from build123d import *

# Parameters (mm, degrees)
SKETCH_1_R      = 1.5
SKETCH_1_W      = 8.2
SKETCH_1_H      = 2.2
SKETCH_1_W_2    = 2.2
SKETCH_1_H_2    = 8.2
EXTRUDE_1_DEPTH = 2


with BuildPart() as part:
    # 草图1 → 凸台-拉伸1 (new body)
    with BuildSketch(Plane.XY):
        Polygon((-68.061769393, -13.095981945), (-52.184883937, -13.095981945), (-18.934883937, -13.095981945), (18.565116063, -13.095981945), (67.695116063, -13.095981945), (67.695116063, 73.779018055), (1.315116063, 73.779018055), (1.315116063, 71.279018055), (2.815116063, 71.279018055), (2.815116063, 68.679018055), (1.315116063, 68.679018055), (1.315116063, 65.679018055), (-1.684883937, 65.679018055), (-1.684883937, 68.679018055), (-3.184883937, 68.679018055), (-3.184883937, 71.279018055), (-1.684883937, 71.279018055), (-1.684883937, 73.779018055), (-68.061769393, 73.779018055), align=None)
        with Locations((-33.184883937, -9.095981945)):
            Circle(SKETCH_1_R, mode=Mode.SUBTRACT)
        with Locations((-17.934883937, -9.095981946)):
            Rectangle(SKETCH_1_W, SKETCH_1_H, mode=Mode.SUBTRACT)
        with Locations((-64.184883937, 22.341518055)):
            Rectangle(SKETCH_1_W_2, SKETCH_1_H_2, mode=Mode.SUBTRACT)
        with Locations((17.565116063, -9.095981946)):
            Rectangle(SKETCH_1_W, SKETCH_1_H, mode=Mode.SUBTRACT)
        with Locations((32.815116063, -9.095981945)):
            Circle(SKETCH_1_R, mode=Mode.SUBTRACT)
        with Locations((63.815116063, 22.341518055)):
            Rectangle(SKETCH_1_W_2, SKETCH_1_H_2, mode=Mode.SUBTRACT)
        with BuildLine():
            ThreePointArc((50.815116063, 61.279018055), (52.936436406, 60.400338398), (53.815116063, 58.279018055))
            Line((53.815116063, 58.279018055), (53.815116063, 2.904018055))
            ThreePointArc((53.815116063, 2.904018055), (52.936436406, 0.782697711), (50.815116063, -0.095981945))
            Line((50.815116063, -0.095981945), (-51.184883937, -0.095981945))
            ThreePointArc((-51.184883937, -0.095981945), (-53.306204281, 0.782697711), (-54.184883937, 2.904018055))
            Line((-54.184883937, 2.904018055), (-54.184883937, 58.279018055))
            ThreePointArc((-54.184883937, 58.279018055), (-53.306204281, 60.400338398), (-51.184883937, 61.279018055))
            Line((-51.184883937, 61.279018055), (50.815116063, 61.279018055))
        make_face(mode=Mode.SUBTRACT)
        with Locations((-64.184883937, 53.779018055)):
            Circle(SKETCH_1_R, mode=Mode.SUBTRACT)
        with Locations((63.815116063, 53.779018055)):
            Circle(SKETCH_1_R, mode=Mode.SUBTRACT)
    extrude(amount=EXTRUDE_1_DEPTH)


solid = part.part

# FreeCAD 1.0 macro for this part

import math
import FreeCAD as App
import Part
import Sketcher
from FreeCAD import Vector
Q = App.Units.Quantity

doc = App.newDocument("Part")
params = doc.addObject("Spreadsheet::Sheet", "Params")
for row, (alias, value) in enumerate([
    ("sketch1_diameter", "3 mm"),
    ("sketch1_radius", "3 mm"),
    ("sketch1_width", "3 mm"),
    ("sketch1_width2", "102 mm"),
    ("sketch1_width3", "1.5 mm"),
    ("pad1_length", "2 mm"),
], start=1):
    params.set(f"A{row}", alias)
    params.set(f"B{row}", "=" + value)
    params.setAlias(f"B{row}", alias)

body = doc.addObject("PartDesign::Body", "Body")

sketch1 = body.newObject("Sketcher::SketchObject", "Sketch")
sketch1.AttachmentSupport = (doc.getObject("XY_Plane"), [""])
sketch1.MapMode = "FlatFace"
sketch1.addGeometry(Part.LineSegment(Vector(-68.061769, -13.095982, 0), Vector(67.695116, -13.095982, 0)), False)
sketch1.addGeometry(Part.LineSegment(Vector(67.695116, -13.095982, 0), Vector(67.695116, 73.779018, 0)), False)
sketch1.addGeometry(Part.LineSegment(Vector(67.695116, 73.779018, 0), Vector(1.315116, 73.779018, 0)), False)
sketch1.addGeometry(Part.LineSegment(Vector(1.315116, 73.779018, 0), Vector(1.315116, 71.279018, 0)), False)
sketch1.addGeometry(Part.LineSegment(Vector(1.315116, 71.279018, 0), Vector(2.815116, 71.279018, 0)), False)
sketch1.addGeometry(Part.LineSegment(Vector(2.815116, 71.279018, 0), Vector(2.815116, 68.679018, 0)), False)
sketch1.addGeometry(Part.LineSegment(Vector(2.815116, 68.679018, 0), Vector(1.315116, 68.679018, 0)), False)
sketch1.addGeometry(Part.LineSegment(Vector(1.315116, 68.679018, 0), Vector(1.315116, 65.679018, 0)), False)
sketch1.addGeometry(Part.LineSegment(Vector(1.315116, 65.679018, 0), Vector(-1.684884, 65.679018, 0)), False)
sketch1.addGeometry(Part.LineSegment(Vector(-1.684884, 65.679018, 0), Vector(-1.684884, 68.679018, 0)), False)
sketch1.addGeometry(Part.LineSegment(Vector(-1.684884, 68.679018, 0), Vector(-3.184884, 68.679018, 0)), False)
sketch1.addGeometry(Part.LineSegment(Vector(-3.184884, 68.679018, 0), Vector(-3.184884, 71.279018, 0)), False)
sketch1.addGeometry(Part.LineSegment(Vector(-3.184884, 71.279018, 0), Vector(-1.684884, 71.279018, 0)), False)
sketch1.addGeometry(Part.LineSegment(Vector(-1.684884, 71.279018, 0), Vector(-1.684884, 73.779018, 0)), False)
sketch1.addGeometry(Part.LineSegment(Vector(-1.684884, 73.779018, 0), Vector(-68.061769, 73.779018, 0)), False)
sketch1.addGeometry(Part.LineSegment(Vector(-68.061769, 73.779018, 0), Vector(-68.061769, -13.095982, 0)), False)
sketch1.addGeometry(Part.Circle(Vector(-33.184884, -9.095982, 0), Vector(0, 0, 1), 1.5), False)
sketch1.addGeometry(Part.LineSegment(Vector(-13.834884, -10.195982, 0), Vector(-22.034884, -10.195982, 0)), False)
sketch1.addGeometry(Part.LineSegment(Vector(-22.034884, -10.195982, 0), Vector(-22.034884, -7.995982, 0)), False)
sketch1.addGeometry(Part.LineSegment(Vector(-22.034884, -7.995982, 0), Vector(-13.834884, -7.995982, 0)), False)
sketch1.addGeometry(Part.LineSegment(Vector(-13.834884, -7.995982, 0), Vector(-13.834884, -10.195982, 0)), False)
sketch1.addGeometry(Part.LineSegment(Vector(-63.084884, 18.241518, 0), Vector(-65.284884, 18.241518, 0)), False)
sketch1.addGeometry(Part.LineSegment(Vector(-65.284884, 18.241518, 0), Vector(-65.284884, 26.441518, 0)), False)
sketch1.addGeometry(Part.LineSegment(Vector(-65.284884, 26.441518, 0), Vector(-63.084884, 26.441518, 0)), False)
sketch1.addGeometry(Part.LineSegment(Vector(-63.084884, 26.441518, 0), Vector(-63.084884, 18.241518, 0)), False)
sketch1.addGeometry(Part.LineSegment(Vector(21.665116, -10.195982, 0), Vector(13.465116, -10.195982, 0)), False)
sketch1.addGeometry(Part.LineSegment(Vector(13.465116, -10.195982, 0), Vector(13.465116, -7.995982, 0)), False)
sketch1.addGeometry(Part.LineSegment(Vector(13.465116, -7.995982, 0), Vector(21.665116, -7.995982, 0)), False)
sketch1.addGeometry(Part.LineSegment(Vector(21.665116, -7.995982, 0), Vector(21.665116, -10.195982, 0)), False)
sketch1.addGeometry(Part.Circle(Vector(32.815116, -9.095982, 0), Vector(0, 0, 1), 1.5), False)
sketch1.addGeometry(Part.LineSegment(Vector(64.915116, 18.241518, 0), Vector(62.715116, 18.241518, 0)), False)
sketch1.addGeometry(Part.LineSegment(Vector(62.715116, 18.241518, 0), Vector(62.715116, 26.441518, 0)), False)
sketch1.addGeometry(Part.LineSegment(Vector(62.715116, 26.441518, 0), Vector(64.915116, 26.441518, 0)), False)
sketch1.addGeometry(Part.LineSegment(Vector(64.915116, 26.441518, 0), Vector(64.915116, 18.241518, 0)), False)
sketch1.addGeometry(Part.LineSegment(Vector(-51.184884, 61.279018, 0), Vector(50.815116, 61.279018, 0)), False)
sketch1.addGeometry(Part.ArcOfCircle(Part.Circle(Vector(50.815116, 58.279018, 0), Vector(0, 0, 1), 3), math.radians(0), math.radians(90)), False)
sketch1.addGeometry(Part.LineSegment(Vector(53.815116, 58.279018, 0), Vector(53.815116, 2.904018, 0)), False)
sketch1.addGeometry(Part.ArcOfCircle(Part.Circle(Vector(50.815116, 2.904018, 0), Vector(0, 0, 1), 3), math.radians(-90), math.radians(0)), False)
sketch1.addGeometry(Part.LineSegment(Vector(50.815116, -0.095982, 0), Vector(-51.184884, -0.095982, 0)), False)
sketch1.addGeometry(Part.ArcOfCircle(Part.Circle(Vector(-51.184884, 2.904018, 0), Vector(0, 0, 1), 3), math.radians(180), math.radians(270)), False)
sketch1.addGeometry(Part.LineSegment(Vector(-54.184884, 2.904018, 0), Vector(-54.184884, 58.279018, 0)), False)
sketch1.addGeometry(Part.ArcOfCircle(Part.Circle(Vector(-51.184884, 58.279018, 0), Vector(0, 0, 1), 3), math.radians(90), math.radians(180)), False)
sketch1.addGeometry(Part.Circle(Vector(-64.184884, 53.779018, 0), Vector(0, 0, 1), 1.5), False)
sketch1.addGeometry(Part.Circle(Vector(63.815116, 53.779018, 0), Vector(0, 0, 1), 1.5), False)
sketch1.addConstraint(Sketcher.Constraint("Coincident", 0, 2, 1, 1))
sketch1.addConstraint(Sketcher.Constraint("Coincident", 1, 2, 2, 1))
sketch1.addConstraint(Sketcher.Constraint("Coincident", 2, 2, 3, 1))
sketch1.addConstraint(Sketcher.Constraint("Coincident", 3, 2, 4, 1))
sketch1.addConstraint(Sketcher.Constraint("Coincident", 4, 2, 5, 1))
sketch1.addConstraint(Sketcher.Constraint("Coincident", 5, 2, 6, 1))
sketch1.addConstraint(Sketcher.Constraint("Coincident", 6, 2, 7, 1))
sketch1.addConstraint(Sketcher.Constraint("Coincident", 7, 2, 8, 1))
sketch1.addConstraint(Sketcher.Constraint("Coincident", 8, 2, 9, 1))
sketch1.addConstraint(Sketcher.Constraint("Coincident", 9, 2, 10, 1))
sketch1.addConstraint(Sketcher.Constraint("Coincident", 10, 2, 11, 1))
sketch1.addConstraint(Sketcher.Constraint("Coincident", 11, 2, 12, 1))
sketch1.addConstraint(Sketcher.Constraint("Coincident", 12, 2, 13, 1))
sketch1.addConstraint(Sketcher.Constraint("Coincident", 13, 2, 14, 1))
sketch1.addConstraint(Sketcher.Constraint("Coincident", 14, 2, 15, 1))
sketch1.addConstraint(Sketcher.Constraint("Coincident", 15, 2, 0, 1))
sketch1.addConstraint(Sketcher.Constraint("Coincident", 17, 2, 18, 1))
sketch1.addConstraint(Sketcher.Constraint("Coincident", 18, 2, 19, 1))
sketch1.addConstraint(Sketcher.Constraint("Coincident", 19, 2, 20, 1))
sketch1.addConstraint(Sketcher.Constraint("Coincident", 20, 2, 17, 1))
sketch1.addConstraint(Sketcher.Constraint("Coincident", 21, 2, 22, 1))
sketch1.addConstraint(Sketcher.Constraint("Coincident", 22, 2, 23, 1))
sketch1.addConstraint(Sketcher.Constraint("Coincident", 23, 2, 24, 1))
sketch1.addConstraint(Sketcher.Constraint("Coincident", 24, 2, 21, 1))
sketch1.addConstraint(Sketcher.Constraint("Coincident", 25, 2, 26, 1))
sketch1.addConstraint(Sketcher.Constraint("Coincident", 26, 2, 27, 1))
sketch1.addConstraint(Sketcher.Constraint("Coincident", 27, 2, 28, 1))
sketch1.addConstraint(Sketcher.Constraint("Coincident", 28, 2, 25, 1))
sketch1.addConstraint(Sketcher.Constraint("Coincident", 30, 2, 31, 1))
sketch1.addConstraint(Sketcher.Constraint("Coincident", 31, 2, 32, 1))
sketch1.addConstraint(Sketcher.Constraint("Coincident", 32, 2, 33, 1))
sketch1.addConstraint(Sketcher.Constraint("Coincident", 33, 2, 30, 1))
sketch1.addConstraint(Sketcher.Constraint("Tangent", 34, 2, 35, 2))
sketch1.addConstraint(Sketcher.Constraint("Tangent", 35, 1, 36, 1))
sketch1.addConstraint(Sketcher.Constraint("Tangent", 36, 2, 37, 2))
sketch1.addConstraint(Sketcher.Constraint("Tangent", 37, 1, 38, 1))
sketch1.addConstraint(Sketcher.Constraint("Tangent", 38, 2, 39, 2))
sketch1.addConstraint(Sketcher.Constraint("Tangent", 39, 1, 40, 1))
sketch1.addConstraint(Sketcher.Constraint("Tangent", 40, 2, 41, 2))
sketch1.addConstraint(Sketcher.Constraint("Tangent", 41, 1, 34, 1))
sketch1.addConstraint(Sketcher.Constraint("Horizontal", 0))
sketch1.addConstraint(Sketcher.Constraint("Vertical", 1))
sketch1.addConstraint(Sketcher.Constraint("Horizontal", 2))
sketch1.addConstraint(Sketcher.Constraint("Vertical", 3))
sketch1.addConstraint(Sketcher.Constraint("Horizontal", 4))
sketch1.addConstraint(Sketcher.Constraint("Vertical", 5))
sketch1.addConstraint(Sketcher.Constraint("Horizontal", 6))
sketch1.addConstraint(Sketcher.Constraint("Vertical", 7))
sketch1.addConstraint(Sketcher.Constraint("Horizontal", 8))
sketch1.addConstraint(Sketcher.Constraint("Vertical", 9))
sketch1.addConstraint(Sketcher.Constraint("Horizontal", 10))
sketch1.addConstraint(Sketcher.Constraint("Vertical", 11))
sketch1.addConstraint(Sketcher.Constraint("Horizontal", 12))
sketch1.addConstraint(Sketcher.Constraint("Vertical", 13))
sketch1.addConstraint(Sketcher.Constraint("Horizontal", 14))
sketch1.addConstraint(Sketcher.Constraint("Vertical", 15))
sketch1.addConstraint(Sketcher.Constraint("Horizontal", 17))
sketch1.addConstraint(Sketcher.Constraint("Vertical", 18))
sketch1.addConstraint(Sketcher.Constraint("Horizontal", 19))
sketch1.addConstraint(Sketcher.Constraint("Vertical", 20))
sketch1.addConstraint(Sketcher.Constraint("Horizontal", 21))
sketch1.addConstraint(Sketcher.Constraint("Vertical", 22))
sketch1.addConstraint(Sketcher.Constraint("Horizontal", 23))
sketch1.addConstraint(Sketcher.Constraint("Vertical", 24))
sketch1.addConstraint(Sketcher.Constraint("Horizontal", 25))
sketch1.addConstraint(Sketcher.Constraint("Vertical", 26))
sketch1.addConstraint(Sketcher.Constraint("Horizontal", 27))
sketch1.addConstraint(Sketcher.Constraint("Vertical", 28))
sketch1.addConstraint(Sketcher.Constraint("Horizontal", 30))
sketch1.addConstraint(Sketcher.Constraint("Vertical", 31))
sketch1.addConstraint(Sketcher.Constraint("Horizontal", 32))
sketch1.addConstraint(Sketcher.Constraint("Vertical", 33))
sketch1.addConstraint(Sketcher.Constraint("Horizontal", 34))
sketch1.addConstraint(Sketcher.Constraint("Vertical", 36))
sketch1.addConstraint(Sketcher.Constraint("Horizontal", 38))
sketch1.addConstraint(Sketcher.Constraint("Vertical", 40))
sketch1.addConstraint(Sketcher.Constraint("Equal", 16, 29))
sketch1.addConstraint(Sketcher.Constraint("Equal", 35, 37))
sketch1.addConstraint(Sketcher.Constraint("Equal", 37, 39))
sketch1.addConstraint(Sketcher.Constraint("Equal", 39, 41))
sketch1.addConstraint(Sketcher.Constraint("Equal", 29, 42))
sketch1.addConstraint(Sketcher.Constraint("Equal", 42, 43))
sketch1.addConstraint(Sketcher.Constraint("Horizontal", 16, 3, 29, 3))
sketch1.addConstraint(Sketcher.Constraint("Horizontal", 42, 3, 43, 3))
sketch1.addConstraint(Sketcher.Constraint("Horizontal", 6, 2, 9, 2))
sketch1.addConstraint(Sketcher.Constraint("Horizontal", 4, 2, 11, 2))
sketch1.addConstraint(Sketcher.Constraint("Horizontal", 2, 2, 13, 2))
sketch1.addConstraint(Sketcher.Constraint("Horizontal", 20, 2, 25, 2))
sketch1.addConstraint(Sketcher.Constraint("Horizontal", 19, 2, 26, 2))
sketch1.addConstraint(Sketcher.Constraint("Horizontal", 24, 2, 30, 2))
sketch1.addConstraint(Sketcher.Constraint("Horizontal", 23, 2, 31, 2))
sketch1.addConstraint(Sketcher.Constraint("Vertical", 3, 2, 6, 2))
sketch1.addConstraint(Sketcher.Constraint("Vertical", 9, 2, 12, 2))
sketch1.addConstraint(Sketcher.Constraint("Equal", 6, 10))
sketch1.addConstraint(Sketcher.Constraint("Equal", 19, 25))
sketch1.addConstraint(Sketcher.Constraint("Equal", 23, 30))
sketch1.addConstraint(Sketcher.Constraint("Equal", 8, 7))
sketch1.addConstraint(Sketcher.Constraint("Equal", 32, 18))
sketch1.addConstraint(Sketcher.Constraint("Equal", 27, 22))
sketch1.addConstraint(Sketcher.Constraint("Diameter", 16, Q("3 mm")))
sketch1.addConstraint(Sketcher.Constraint("Radius", 35, Q("3 mm")))
sketch1.addConstraint(Sketcher.Constraint("DistanceX", 8, 2, 8, 1, Q("3 mm")))
sketch1.addConstraint(Sketcher.Constraint("DistanceX", 34, 1, 34, 2, Q("102 mm")))
sketch1.addConstraint(Sketcher.Constraint("DistanceX", 4, 1, 4, 2, Q("1.5 mm")))
sketch1.addConstraint(Sketcher.Constraint("DistanceX", 17, 2, 17, 1, Q("8.2 mm")))
sketch1.addConstraint(Sketcher.Constraint("DistanceX", 21, 2, 21, 1, Q("2.2 mm")))
sketch1.addConstraint(Sketcher.Constraint("DistanceY", 3, 2, 3, 1, Q("2.5 mm")))
sketch1.addConstraint(Sketcher.Constraint("DistanceY", 5, 2, 5, 1, Q("2.6 mm")))
sketch1.addConstraint(Sketcher.Constraint("DistanceX", 16, 3, 29, 3, Q("66 mm")))
sketch1.addConstraint(Sketcher.Constraint("DistanceX", 29, 3, 35, 3, Q("18 mm")))
sketch1.addConstraint(Sketcher.Constraint("DistanceY", 29, 3, 37, 3, Q("12 mm")))
sketch1.addConstraint(Sketcher.Constraint("DistanceX", 42, 3, 41, 3, Q("13 mm")))
sketch1.addConstraint(Sketcher.Constraint("DistanceX", 35, 3, 43, 3, Q("13 mm")))
sketch1.addConstraint(Sketcher.Constraint("DistanceY", 0, 2, 37, 3, Q("16 mm")))
sketch1.addConstraint(Sketcher.Constraint("DistanceY", 43, 3, 1, 2, Q("20 mm")))
sketch1.addConstraint(Sketcher.Constraint("DistanceY", 35, 3, 3, 2, Q("13 mm")))
sketch1.addConstraint(Sketcher.Constraint("DistanceX", 4, 2, 35, 3, Q("48 mm")))
sketch1.addConstraint(Sketcher.Constraint("DistanceX", 2, 2, 2, 1, Q("66.38 mm")))
sketch1.addConstraint(Sketcher.Constraint("DistanceY", 17, 2, 16, 3, Q("1.1 mm")))
sketch1.addConstraint(Sketcher.Constraint("DistanceX", 21, 2, 39, 3, Q("14.1 mm")))
sketch1.addConstraint(Sketcher.Constraint("DistanceX", 20, 2, 25, 2, Q("27.3 mm")))
sketch1.addConstraint(Sketcher.Constraint("DistanceX", 37, 3, 30, 2, Q("11.9 mm")))
sketch1.addConstraint(Sketcher.Constraint("DistanceY", 1, 1, 1, 2, Q("86.875 mm")))
sketch1.addConstraint(Sketcher.Constraint("DistanceX", 16, 3, 17, 2, Q("11.15 mm")))
sketch1.addConstraint(Sketcher.Constraint("DistanceY", 39, 3, 21, 2, Q("15.3375 mm")))
sketch1.addConstraint(Sketcher.Constraint("DistanceX", 0, 1, 0, 2, Q("135.756885 mm")))
sketch1.addConstraint(Sketcher.Constraint("DistanceY", 16, 3, -1, 1, Q("9.095982 mm")))
sketch1.addConstraint(Sketcher.Constraint("DistanceX", 14, 2, -1, 1, Q("68.061769 mm")))
sketch1.setExpression("Constraints[99]", "Params.sketch1_diameter")
sketch1.setExpression("Constraints[100]", "Params.sketch1_radius")
sketch1.setExpression("Constraints[101]", "Params.sketch1_width")
sketch1.setExpression("Constraints[102]", "Params.sketch1_width2")
sketch1.setExpression("Constraints[103]", "Params.sketch1_width3")
pad1 = body.newObject("PartDesign::Pad", "Pad")
pad1.Profile = sketch1
pad1.setExpression("Length", "Params.pad1_length")

doc.recompute()
